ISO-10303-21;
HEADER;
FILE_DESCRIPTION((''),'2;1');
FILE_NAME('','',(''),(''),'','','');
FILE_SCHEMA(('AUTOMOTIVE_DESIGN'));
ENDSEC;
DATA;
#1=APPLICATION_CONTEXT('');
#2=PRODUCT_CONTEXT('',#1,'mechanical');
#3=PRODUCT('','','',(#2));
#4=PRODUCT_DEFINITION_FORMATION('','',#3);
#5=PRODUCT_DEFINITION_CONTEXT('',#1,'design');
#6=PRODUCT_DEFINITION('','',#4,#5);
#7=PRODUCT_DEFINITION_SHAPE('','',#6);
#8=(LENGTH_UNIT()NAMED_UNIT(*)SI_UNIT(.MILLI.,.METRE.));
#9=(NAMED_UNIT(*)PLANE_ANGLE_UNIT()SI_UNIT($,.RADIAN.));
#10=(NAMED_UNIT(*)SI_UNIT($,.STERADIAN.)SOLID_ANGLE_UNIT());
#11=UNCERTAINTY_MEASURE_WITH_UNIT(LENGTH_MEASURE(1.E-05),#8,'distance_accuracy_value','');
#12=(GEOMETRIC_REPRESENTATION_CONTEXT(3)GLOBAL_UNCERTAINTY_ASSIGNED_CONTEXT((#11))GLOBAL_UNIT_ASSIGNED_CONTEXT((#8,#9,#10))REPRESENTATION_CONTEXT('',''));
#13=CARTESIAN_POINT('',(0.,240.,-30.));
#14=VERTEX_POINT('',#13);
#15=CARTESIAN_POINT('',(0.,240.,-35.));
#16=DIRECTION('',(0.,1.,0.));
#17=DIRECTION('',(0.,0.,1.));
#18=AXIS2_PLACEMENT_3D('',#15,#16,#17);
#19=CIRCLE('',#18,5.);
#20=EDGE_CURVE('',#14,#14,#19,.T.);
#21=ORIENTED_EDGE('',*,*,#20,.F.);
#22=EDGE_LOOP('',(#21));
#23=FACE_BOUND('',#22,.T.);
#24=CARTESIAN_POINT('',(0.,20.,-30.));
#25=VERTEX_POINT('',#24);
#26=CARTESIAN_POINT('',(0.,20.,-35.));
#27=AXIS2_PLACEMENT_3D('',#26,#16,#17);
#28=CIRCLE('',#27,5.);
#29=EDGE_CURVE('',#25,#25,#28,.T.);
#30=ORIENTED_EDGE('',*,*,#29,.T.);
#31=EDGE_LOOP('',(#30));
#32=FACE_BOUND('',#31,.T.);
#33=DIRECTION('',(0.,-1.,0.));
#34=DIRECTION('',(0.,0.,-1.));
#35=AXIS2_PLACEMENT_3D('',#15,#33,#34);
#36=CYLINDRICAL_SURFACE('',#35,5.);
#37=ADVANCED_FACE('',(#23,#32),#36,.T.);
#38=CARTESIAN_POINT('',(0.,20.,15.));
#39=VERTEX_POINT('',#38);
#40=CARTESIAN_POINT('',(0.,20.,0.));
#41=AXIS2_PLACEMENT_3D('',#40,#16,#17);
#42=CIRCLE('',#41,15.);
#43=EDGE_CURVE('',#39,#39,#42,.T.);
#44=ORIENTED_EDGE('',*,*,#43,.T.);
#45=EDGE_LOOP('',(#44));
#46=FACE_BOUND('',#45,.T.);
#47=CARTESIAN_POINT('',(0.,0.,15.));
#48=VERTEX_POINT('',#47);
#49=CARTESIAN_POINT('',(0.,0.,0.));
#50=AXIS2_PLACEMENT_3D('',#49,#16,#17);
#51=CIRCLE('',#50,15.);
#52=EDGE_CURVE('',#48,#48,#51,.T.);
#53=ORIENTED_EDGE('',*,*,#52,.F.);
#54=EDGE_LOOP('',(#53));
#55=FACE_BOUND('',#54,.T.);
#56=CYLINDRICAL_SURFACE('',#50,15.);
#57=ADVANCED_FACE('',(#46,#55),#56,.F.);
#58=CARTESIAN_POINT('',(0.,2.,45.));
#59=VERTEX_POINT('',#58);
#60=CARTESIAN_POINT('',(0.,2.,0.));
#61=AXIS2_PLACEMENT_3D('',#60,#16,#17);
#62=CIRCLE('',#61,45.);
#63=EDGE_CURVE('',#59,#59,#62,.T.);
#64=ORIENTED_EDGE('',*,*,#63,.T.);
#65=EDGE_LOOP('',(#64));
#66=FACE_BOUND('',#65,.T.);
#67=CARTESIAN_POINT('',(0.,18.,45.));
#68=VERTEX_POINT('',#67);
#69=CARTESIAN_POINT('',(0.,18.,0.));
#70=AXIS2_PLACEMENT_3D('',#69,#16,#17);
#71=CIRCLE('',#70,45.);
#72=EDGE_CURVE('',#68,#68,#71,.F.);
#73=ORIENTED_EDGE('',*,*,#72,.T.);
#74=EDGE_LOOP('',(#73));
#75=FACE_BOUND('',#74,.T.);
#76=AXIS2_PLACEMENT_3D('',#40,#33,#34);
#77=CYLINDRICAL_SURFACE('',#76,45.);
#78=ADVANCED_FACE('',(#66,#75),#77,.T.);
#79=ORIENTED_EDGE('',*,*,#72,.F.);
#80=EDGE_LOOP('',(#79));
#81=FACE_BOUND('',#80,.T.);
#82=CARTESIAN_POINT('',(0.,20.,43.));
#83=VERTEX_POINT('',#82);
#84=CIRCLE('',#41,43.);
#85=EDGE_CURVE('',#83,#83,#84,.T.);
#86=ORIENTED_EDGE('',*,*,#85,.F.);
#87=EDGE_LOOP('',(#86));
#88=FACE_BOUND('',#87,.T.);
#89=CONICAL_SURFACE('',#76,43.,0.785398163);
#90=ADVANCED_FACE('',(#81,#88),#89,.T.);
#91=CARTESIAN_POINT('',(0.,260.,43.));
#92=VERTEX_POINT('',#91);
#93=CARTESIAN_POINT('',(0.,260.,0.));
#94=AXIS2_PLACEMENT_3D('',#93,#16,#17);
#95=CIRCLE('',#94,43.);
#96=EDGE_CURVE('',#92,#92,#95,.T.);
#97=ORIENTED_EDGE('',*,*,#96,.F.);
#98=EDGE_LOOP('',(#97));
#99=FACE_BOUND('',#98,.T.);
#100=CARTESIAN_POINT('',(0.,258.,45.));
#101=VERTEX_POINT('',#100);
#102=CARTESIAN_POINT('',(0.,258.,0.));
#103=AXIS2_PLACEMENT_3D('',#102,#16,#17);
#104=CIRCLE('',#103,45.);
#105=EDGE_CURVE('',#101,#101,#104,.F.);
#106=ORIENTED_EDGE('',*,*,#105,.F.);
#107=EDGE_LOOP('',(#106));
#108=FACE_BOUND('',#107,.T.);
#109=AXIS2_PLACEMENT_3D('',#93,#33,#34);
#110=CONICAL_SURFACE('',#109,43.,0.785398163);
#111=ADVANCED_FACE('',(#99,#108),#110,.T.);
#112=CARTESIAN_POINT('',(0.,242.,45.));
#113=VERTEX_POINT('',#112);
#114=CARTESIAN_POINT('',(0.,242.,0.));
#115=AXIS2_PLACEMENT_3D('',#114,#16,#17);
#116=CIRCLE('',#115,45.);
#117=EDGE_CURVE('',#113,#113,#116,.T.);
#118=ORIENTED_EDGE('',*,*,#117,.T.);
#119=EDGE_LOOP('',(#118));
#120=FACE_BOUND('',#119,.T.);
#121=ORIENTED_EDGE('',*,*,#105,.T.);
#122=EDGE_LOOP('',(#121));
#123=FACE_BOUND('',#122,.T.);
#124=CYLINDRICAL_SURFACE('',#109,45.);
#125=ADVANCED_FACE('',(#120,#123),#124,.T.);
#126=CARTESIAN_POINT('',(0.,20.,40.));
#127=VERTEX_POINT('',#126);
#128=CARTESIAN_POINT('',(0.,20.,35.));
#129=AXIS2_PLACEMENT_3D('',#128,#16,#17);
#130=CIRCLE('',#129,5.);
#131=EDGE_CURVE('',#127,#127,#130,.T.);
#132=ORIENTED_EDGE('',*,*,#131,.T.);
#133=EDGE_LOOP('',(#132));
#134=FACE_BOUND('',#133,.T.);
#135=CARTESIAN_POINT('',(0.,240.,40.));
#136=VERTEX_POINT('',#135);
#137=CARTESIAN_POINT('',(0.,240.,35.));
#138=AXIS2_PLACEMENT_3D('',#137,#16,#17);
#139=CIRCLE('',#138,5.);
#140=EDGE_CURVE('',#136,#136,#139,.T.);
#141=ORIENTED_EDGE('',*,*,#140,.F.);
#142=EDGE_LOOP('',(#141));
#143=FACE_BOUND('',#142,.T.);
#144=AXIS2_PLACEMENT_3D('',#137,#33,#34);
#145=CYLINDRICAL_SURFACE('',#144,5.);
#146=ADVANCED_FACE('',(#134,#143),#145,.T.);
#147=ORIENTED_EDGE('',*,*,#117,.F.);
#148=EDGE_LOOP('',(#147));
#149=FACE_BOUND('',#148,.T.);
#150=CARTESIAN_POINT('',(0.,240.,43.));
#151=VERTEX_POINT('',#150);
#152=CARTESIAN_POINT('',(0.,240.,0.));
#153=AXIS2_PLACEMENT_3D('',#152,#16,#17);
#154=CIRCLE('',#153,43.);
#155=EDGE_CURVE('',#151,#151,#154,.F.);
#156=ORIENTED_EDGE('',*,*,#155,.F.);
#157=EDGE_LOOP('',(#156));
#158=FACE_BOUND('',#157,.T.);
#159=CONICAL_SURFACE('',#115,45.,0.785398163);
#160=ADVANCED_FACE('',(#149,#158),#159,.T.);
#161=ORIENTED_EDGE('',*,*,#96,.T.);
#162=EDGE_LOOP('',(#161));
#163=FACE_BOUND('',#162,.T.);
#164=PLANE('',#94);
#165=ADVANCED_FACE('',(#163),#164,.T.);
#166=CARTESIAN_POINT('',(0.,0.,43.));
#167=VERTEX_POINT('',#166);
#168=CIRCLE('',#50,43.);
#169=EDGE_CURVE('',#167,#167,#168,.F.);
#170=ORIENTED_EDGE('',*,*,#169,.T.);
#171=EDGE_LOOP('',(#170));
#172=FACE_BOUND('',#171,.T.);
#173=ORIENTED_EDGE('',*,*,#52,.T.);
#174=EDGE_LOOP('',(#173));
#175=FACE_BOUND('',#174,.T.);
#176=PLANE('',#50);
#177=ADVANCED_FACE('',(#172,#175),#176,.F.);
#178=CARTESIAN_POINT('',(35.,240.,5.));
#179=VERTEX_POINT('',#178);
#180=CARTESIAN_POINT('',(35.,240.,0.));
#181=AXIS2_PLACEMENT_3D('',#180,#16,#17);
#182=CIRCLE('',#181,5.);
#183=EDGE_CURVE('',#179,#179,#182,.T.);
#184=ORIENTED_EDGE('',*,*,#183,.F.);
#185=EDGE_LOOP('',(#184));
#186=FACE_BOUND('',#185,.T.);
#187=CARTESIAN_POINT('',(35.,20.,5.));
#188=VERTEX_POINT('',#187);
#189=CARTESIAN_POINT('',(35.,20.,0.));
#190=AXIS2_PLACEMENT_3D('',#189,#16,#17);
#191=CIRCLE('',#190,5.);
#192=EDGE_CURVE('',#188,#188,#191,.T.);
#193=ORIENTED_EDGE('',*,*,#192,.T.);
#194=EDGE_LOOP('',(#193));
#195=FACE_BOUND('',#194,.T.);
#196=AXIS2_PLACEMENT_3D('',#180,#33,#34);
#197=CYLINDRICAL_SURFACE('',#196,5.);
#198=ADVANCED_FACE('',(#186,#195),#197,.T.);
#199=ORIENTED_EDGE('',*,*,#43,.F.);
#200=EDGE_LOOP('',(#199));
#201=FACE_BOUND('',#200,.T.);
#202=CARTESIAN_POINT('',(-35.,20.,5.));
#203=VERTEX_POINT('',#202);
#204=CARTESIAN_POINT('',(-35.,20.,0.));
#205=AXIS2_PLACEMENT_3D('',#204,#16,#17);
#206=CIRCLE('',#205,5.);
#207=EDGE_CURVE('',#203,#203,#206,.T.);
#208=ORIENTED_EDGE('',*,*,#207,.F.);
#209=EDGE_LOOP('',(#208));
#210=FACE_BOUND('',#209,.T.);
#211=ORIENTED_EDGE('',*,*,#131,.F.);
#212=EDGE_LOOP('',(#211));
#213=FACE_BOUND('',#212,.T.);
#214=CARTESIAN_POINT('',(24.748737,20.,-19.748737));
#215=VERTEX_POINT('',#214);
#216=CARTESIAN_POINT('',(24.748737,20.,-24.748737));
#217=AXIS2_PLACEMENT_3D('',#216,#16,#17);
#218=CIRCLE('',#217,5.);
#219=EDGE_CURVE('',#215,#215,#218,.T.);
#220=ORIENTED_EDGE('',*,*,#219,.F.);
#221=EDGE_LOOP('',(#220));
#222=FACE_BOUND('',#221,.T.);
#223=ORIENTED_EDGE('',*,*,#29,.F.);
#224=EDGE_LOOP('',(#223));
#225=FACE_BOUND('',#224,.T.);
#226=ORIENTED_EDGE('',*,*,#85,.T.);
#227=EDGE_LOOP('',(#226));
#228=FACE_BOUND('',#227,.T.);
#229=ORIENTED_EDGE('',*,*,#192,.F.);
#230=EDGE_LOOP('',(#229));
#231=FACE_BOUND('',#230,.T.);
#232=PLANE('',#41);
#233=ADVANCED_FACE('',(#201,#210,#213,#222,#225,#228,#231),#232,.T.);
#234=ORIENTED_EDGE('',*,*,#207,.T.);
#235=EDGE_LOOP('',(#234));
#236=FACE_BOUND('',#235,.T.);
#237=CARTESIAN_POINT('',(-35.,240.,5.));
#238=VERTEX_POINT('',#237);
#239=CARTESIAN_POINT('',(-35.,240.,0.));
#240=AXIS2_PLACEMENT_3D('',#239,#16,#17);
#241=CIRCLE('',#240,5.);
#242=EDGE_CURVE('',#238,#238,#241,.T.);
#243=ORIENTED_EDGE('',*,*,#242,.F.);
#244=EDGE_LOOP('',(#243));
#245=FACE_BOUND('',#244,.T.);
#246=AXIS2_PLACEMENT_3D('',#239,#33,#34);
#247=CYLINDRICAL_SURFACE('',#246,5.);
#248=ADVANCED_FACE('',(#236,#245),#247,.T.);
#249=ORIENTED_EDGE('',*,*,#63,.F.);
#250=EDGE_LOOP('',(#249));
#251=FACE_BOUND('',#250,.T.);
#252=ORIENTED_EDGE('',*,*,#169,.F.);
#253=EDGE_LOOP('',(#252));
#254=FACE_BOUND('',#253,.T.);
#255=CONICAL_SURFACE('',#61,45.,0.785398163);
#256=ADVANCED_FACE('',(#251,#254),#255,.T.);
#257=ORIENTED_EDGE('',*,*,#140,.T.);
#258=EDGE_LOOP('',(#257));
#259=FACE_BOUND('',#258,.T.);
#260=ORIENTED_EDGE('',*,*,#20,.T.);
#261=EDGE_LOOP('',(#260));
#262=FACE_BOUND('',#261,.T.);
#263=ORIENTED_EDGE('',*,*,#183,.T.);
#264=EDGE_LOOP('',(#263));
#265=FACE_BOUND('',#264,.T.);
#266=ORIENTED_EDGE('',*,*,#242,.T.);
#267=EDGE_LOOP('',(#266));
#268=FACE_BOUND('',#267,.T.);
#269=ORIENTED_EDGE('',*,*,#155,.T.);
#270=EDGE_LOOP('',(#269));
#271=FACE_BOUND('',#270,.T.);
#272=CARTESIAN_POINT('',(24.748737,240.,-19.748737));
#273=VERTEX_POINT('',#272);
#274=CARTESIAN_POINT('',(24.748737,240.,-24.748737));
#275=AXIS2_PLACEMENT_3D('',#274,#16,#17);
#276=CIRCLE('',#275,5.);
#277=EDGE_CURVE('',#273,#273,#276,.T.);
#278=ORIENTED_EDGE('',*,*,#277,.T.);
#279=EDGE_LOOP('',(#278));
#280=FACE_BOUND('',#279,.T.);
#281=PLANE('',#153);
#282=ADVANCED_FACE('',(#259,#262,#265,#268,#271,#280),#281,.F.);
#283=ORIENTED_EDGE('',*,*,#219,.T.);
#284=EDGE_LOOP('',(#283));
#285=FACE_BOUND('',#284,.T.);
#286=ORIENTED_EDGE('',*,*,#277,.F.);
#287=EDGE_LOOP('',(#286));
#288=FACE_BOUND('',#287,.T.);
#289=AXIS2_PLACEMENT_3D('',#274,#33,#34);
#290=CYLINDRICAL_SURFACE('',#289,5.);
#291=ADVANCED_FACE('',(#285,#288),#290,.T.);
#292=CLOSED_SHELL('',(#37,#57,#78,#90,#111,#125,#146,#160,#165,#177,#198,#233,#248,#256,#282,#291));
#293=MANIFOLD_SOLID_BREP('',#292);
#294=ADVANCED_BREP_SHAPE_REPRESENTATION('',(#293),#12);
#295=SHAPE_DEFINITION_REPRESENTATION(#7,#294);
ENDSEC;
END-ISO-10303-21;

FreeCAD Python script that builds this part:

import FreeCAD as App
import Part
import Sketcher
Q = App.Units.Quantity


def edges_at(feature, points):
    """Names of the edges that pass closest to the given points."""
    edges = feature.Shape.Edges
    near = lambda p: min(range(len(edges)), key=lambda i: edges[i].distToShape(Part.Vertex(*p))[0])
    return sorted({f"Edge{near(p) + 1}" for p in points})

doc = App.newDocument("Part")
body = doc.addObject("PartDesign::Body", "Body")

sketch1 = body.newObject("Sketcher::SketchObject", "Sketch")
sketch1.AttachmentSupport = (doc.getObject("XZ_Plane"), [""])
sketch1.MapMode = "FlatFace"
sketch1.addGeometry(Part.Circle(App.Vector(0, 0, 0), App.Vector(0, 0, 1), 45), False)
sketch1.addConstraint(Sketcher.Constraint("Coincident", 0, 3, -1, 1))
sketch1.addConstraint(Sketcher.Constraint("Diameter", 0, Q("90 mm")))
pad1 = body.newObject("PartDesign::Pad", "Pad")
pad1.Profile = sketch1
pad1.Length = 20
pad1.Reversed = True

sketch2 = body.newObject("Sketcher::SketchObject", "Sketch001")
sketch2.AttachmentSupport = (doc.getObject("XZ_Plane"), [""])
sketch2.MapMode = "FlatFace"
sketch2.AttachmentOffset = App.Placement(App.Vector(0, 0, -20), App.Rotation())
sketch2.addGeometry(Part.Circle(App.Vector(0, 0, 0), App.Vector(0, 0, 1), 15), False)
sketch2.addConstraint(Sketcher.Constraint("Coincident", 0, 3, -1, 1))
sketch2.addConstraint(Sketcher.Constraint("Diameter", 0, Q("30 mm")))
pocket1 = body.newObject("PartDesign::Pocket", "Pocket")
pocket1.Profile = sketch2
pocket1.Type = "ThroughAll"
pocket1.Reversed = True

sketch3 = body.newObject("Sketcher::SketchObject", "Sketch002")
sketch3.AttachmentSupport = (doc.getObject("XZ_Plane"), [""])
sketch3.MapMode = "FlatFace"
sketch3.AttachmentOffset = App.Placement(App.Vector(0, 0, -20), App.Rotation())
sketch3.addGeometry(Part.Circle(App.Vector(35, 0, 0), App.Vector(0, 0, 1), 5), False)
sketch3.addGeometry(Part.Circle(App.Vector(0, 35, 0), App.Vector(0, 0, 1), 5), False)
sketch3.addGeometry(Part.Circle(App.Vector(-35, 0, 0), App.Vector(0, 0, 1), 5), False)
sketch3.addGeometry(Part.Circle(App.Vector(0, -35, 0), App.Vector(0, 0, 1), 5), False)
sketch3.addGeometry(Part.Circle(App.Vector(25, -25, 0), App.Vector(0, 0, 1), 5), False)
sketch3.addConstraint(Sketcher.Constraint("Equal", 0, 1))
sketch3.addConstraint(Sketcher.Constraint("Equal", 1, 2))
sketch3.addConstraint(Sketcher.Constraint("Equal", 2, 3))
sketch3.addConstraint(Sketcher.Constraint("Equal", 3, 4))
sketch3.addConstraint(Sketcher.Constraint("Symmetric", 0, 3, 2, 3, -1, 1))
sketch3.addConstraint(Sketcher.Constraint("Symmetric", 1, 3, 3, 3, -1, 1))
sketch3.addConstraint(Sketcher.Constraint("PointOnObject", 0, 3, -1))
sketch3.addConstraint(Sketcher.Constraint("PointOnObject", 1, 3, -2))
sketch3.addConstraint(Sketcher.Constraint("Diameter", 0, Q("10 mm")))
sketch3.addConstraint(Sketcher.Constraint("DistanceX", -1, 1, 0, 3, Q("35 mm")))
sketch3.addConstraint(Sketcher.Constraint("DistanceY", -1, 1, 1, 3, Q("35 mm")))
sketch3.addConstraint(Sketcher.Constraint("DistanceX", -1, 1, 4, 3, Q("24.748737 mm")))
sketch3.addConstraint(Sketcher.Constraint("DistanceY", 4, 3, -1, 1, Q("24.748737 mm")))
pad2 = body.newObject("PartDesign::Pad", "Pad001")
pad2.Profile = sketch3
pad2.Length = 220
pad2.Reversed = True

sketch4 = body.newObject("Sketcher::SketchObject", "Sketch003")
sketch4.AttachmentSupport = (doc.getObject("XZ_Plane"), [""])
sketch4.MapMode = "FlatFace"
sketch4.AttachmentOffset = App.Placement(App.Vector(0, 0, -240), App.Rotation())
sketch4.addGeometry(Part.Circle(App.Vector(0, 0, 0), App.Vector(0, 0, 1), 45), False)
sketch4.addConstraint(Sketcher.Constraint("Coincident", 0, 3, -1, 1))
sketch4.addConstraint(Sketcher.Constraint("Diameter", 0, Q("90 mm")))
pad3 = body.newObject("PartDesign::Pad", "Pad002")
pad3.Profile = sketch4
pad3.Length = 20
pad3.Reversed = True
doc.recompute()

chamfer = body.newObject("PartDesign::Chamfer", "Chamfer")
chamfer.Base = (pad3, edges_at(pad3, [
    (-45, 0, 0),
    (-45, 240, 0),
    (-45, 260, 0),
    (-45, 20, 0),
]))
chamfer.Size = 2

doc.recompute()
